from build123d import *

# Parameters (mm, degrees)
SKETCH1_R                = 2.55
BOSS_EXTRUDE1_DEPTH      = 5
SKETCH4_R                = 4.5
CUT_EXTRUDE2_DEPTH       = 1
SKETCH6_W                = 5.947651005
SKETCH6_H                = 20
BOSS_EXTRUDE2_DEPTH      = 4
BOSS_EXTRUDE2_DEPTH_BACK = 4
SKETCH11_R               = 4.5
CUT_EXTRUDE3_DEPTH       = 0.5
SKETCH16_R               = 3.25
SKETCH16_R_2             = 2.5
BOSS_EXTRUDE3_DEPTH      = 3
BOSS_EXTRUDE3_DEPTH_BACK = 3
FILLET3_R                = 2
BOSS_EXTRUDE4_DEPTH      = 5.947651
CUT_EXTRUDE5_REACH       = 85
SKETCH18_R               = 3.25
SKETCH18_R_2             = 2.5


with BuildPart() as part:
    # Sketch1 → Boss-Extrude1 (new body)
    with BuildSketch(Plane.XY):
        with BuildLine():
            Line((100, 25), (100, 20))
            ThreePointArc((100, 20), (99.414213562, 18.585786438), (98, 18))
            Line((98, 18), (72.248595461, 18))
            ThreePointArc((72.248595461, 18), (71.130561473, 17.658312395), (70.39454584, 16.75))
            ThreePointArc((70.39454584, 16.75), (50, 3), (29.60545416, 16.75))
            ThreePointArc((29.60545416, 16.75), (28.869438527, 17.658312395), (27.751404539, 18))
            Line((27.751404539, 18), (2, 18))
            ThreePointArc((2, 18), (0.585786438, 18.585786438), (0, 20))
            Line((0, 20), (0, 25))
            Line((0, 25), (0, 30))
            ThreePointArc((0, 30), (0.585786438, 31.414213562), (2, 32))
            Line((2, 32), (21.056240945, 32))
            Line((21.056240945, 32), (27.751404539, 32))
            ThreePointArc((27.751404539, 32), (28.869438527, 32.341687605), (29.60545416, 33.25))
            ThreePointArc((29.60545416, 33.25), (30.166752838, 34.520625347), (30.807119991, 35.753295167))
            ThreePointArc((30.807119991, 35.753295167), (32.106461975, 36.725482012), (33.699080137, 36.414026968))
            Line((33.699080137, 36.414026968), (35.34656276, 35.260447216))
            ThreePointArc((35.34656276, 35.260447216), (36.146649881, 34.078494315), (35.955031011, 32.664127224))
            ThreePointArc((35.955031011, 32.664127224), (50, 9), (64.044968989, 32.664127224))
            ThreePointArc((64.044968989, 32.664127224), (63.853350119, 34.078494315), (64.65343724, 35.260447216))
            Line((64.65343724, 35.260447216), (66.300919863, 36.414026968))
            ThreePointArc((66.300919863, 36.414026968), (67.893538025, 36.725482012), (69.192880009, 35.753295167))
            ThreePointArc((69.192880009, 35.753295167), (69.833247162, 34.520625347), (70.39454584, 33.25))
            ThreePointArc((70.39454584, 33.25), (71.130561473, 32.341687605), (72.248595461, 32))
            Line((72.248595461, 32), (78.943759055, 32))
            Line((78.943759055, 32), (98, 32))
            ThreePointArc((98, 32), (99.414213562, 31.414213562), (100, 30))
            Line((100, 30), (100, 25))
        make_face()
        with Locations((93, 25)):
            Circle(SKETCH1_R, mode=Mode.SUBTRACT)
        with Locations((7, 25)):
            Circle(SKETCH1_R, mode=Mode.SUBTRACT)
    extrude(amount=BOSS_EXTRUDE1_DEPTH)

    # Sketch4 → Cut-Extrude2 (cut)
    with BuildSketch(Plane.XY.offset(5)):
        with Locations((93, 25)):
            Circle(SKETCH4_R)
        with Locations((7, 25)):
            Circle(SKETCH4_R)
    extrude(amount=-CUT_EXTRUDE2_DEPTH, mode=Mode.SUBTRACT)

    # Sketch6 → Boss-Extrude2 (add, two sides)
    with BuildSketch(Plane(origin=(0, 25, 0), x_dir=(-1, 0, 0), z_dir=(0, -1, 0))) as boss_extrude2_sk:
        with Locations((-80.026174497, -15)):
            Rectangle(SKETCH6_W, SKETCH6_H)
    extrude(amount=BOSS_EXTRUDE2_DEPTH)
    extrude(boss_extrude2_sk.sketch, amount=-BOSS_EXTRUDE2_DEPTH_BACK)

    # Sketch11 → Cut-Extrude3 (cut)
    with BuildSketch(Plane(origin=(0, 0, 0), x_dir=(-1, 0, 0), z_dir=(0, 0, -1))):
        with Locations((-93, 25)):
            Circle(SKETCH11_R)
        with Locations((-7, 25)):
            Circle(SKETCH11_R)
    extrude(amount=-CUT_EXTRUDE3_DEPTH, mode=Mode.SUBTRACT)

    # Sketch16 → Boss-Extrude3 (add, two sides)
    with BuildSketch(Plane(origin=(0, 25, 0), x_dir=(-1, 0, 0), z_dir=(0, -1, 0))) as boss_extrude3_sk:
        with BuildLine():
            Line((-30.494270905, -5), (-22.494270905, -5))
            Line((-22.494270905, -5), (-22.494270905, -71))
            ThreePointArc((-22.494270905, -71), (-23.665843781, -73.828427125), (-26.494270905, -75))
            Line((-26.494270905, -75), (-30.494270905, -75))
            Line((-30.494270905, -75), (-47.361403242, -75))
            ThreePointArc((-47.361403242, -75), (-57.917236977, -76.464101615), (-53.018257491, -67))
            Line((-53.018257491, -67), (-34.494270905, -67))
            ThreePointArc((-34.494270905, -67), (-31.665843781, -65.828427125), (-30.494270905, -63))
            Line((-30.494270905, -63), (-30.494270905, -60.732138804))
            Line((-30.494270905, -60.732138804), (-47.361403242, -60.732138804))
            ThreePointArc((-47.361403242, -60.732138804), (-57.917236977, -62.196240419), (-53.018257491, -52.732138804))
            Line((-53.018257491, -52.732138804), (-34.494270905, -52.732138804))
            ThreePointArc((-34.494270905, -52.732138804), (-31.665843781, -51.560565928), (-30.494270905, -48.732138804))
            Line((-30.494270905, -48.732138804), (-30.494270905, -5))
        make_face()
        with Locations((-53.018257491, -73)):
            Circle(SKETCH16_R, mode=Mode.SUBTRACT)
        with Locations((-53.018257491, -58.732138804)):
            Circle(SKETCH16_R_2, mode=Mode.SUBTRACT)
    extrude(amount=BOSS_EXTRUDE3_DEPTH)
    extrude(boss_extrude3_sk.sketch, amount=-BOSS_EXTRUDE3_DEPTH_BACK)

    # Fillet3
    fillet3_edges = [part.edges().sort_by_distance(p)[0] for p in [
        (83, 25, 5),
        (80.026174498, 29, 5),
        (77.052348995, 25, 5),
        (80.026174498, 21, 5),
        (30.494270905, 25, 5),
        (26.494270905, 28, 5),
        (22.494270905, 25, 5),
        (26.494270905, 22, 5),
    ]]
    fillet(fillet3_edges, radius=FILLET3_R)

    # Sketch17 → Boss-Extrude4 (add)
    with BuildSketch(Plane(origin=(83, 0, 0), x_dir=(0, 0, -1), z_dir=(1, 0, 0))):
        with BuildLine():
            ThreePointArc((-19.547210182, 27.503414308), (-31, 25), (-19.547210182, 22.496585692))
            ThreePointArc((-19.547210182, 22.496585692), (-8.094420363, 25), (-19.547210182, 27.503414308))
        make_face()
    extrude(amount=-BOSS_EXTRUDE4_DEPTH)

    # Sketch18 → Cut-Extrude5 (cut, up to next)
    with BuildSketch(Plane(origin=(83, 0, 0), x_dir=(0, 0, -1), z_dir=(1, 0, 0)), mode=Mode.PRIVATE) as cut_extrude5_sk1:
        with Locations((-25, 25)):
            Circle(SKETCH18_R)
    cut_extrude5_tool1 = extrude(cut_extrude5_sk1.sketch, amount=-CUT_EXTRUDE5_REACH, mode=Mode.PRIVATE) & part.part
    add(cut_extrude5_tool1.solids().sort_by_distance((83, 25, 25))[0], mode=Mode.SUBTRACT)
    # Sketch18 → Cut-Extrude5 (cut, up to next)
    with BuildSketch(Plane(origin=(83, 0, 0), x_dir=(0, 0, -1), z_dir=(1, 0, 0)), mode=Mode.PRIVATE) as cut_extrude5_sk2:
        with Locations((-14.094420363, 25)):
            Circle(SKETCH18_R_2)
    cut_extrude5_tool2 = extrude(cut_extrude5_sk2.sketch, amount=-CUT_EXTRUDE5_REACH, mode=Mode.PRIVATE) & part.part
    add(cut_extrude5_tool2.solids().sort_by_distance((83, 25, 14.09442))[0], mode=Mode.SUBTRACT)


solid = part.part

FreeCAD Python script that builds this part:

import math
import FreeCAD as App
import Part
import Sketcher

V = App.Vector
Q = App.Units.Quantity


def edges_at(feature, points):
    """Names of the edges that pass closest to the given points."""
    edges = feature.Shape.Edges
    near = lambda p: min(range(len(edges)), key=lambda i: edges[i].distToShape(Part.Vertex(*p))[0])
    return sorted({f"Edge{near(p) + 1}" for p in points})


def add_polygon(sketch, points):
    """Adds a closed chain of lines whose ends are joined by coincident constraints."""
    first, n = sketch.GeometryCount, len(points)
    for a, b in zip(points, points[1:] + points[:1]):
        sketch.addGeometry(Part.LineSegment(App.Vector(*a, 0), App.Vector(*b, 0)), False)
    for i in range(n):
        sketch.addConstraint(Sketcher.Constraint("Coincident", first + i, 2, first + (i + 1) % n, 1))

doc = App.newDocument("Part")
body = doc.addObject("PartDesign::Body", "Body")

sketch1 = body.newObject("Sketcher::SketchObject", "Sketch")
sketch1.AttachmentSupport = (doc.getObject("XY_Plane"), [""])
sketch1.MapMode = "FlatFace"
sketch1.addGeometry(Part.ArcOfCircle(Part.Circle(V(98, 20, 0), V(0, 0, 1), 2), math.radians(-90), math.radians(0)), False)
sketch1.addGeometry(Part.LineSegment(V(100, 20, 0), V(100, 30, 0)), False)
sketch1.addGeometry(Part.ArcOfCircle(Part.Circle(V(98, 30, 0), V(0, 0, 1), 2), math.radians(0), math.radians(90)), False)
sketch1.addGeometry(Part.LineSegment(V(98, 32, 0), V(72.248595, 32, 0)), False)
sketch1.addGeometry(Part.ArcOfCircle(Part.Circle(V(72.248595, 34, 0), V(0, 0, 1), 2), math.radians(-157.975687), math.radians(-90)), False)
sketch1.addGeometry(Part.ArcOfCircle(Part.Circle(V(50, 25, 0), V(0, 0, 1), 22), math.radians(22.024313), math.radians(29.26083)), False)
sketch1.addGeometry(Part.ArcOfCircle(Part.Circle(V(67.448073, 34.775723, 0), V(0, 0, 1), 2), math.radians(29.26083), math.radians(125)), False)
sketch1.addGeometry(Part.LineSegment(V(66.30092, 36.414027, 0), V(64.653437, 35.260447, 0)), False)
sketch1.addGeometry(Part.ArcOfCircle(Part.Circle(V(65.80059, 33.622143, 0), V(0, 0, 1), 2), math.radians(125), math.radians(208.62063)), False)
sketch1.addGeometry(Part.ArcOfCircle(Part.Circle(V(50, 25, 0), V(0, 0, 1), 16), math.radians(151.37937), math.radians(388.62063)), False)
sketch1.addGeometry(Part.ArcOfCircle(Part.Circle(V(34.19941, 33.622143, 0), V(0, 0, 1), 2), math.radians(-28.62063), math.radians(55)), False)
sketch1.addGeometry(Part.LineSegment(V(35.346563, 35.260447, 0), V(33.69908, 36.414027, 0)), False)
sketch1.addGeometry(Part.ArcOfCircle(Part.Circle(V(32.551927, 34.775723, 0), V(0, 0, 1), 2), math.radians(55), math.radians(150.73917)), False)
sketch1.addGeometry(Part.ArcOfCircle(Part.Circle(V(50, 25, 0), V(0, 0, 1), 22), math.radians(150.73917), math.radians(157.975687)), False)
sketch1.addGeometry(Part.ArcOfCircle(Part.Circle(V(27.751405, 34, 0), V(0, 0, 1), 2), math.radians(-90), math.radians(-22.024313)), False)
sketch1.addGeometry(Part.LineSegment(V(27.751405, 32, 0), V(2, 32, 0)), False)
sketch1.addGeometry(Part.ArcOfCircle(Part.Circle(V(2, 30, 0), V(0, 0, 1), 2), math.radians(90), math.radians(180)), False)
sketch1.addGeometry(Part.LineSegment(V(0, 30, 0), V(0, 20, 0)), False)
sketch1.addGeometry(Part.ArcOfCircle(Part.Circle(V(2, 20, 0), V(0, 0, 1), 2), math.radians(-180), math.radians(-90)), False)
sketch1.addGeometry(Part.LineSegment(V(2, 18, 0), V(27.751405, 18, 0)), False)
sketch1.addGeometry(Part.ArcOfCircle(Part.Circle(V(27.751405, 16, 0), V(0, 0, 1), 2), math.radians(22.024313), math.radians(90)), False)
sketch1.addGeometry(Part.ArcOfCircle(Part.Circle(V(50, 25, 0), V(0, 0, 1), 22), math.radians(-157.975687), math.radians(-22.024313)), False)
sketch1.addGeometry(Part.ArcOfCircle(Part.Circle(V(72.248595, 16, 0), V(0, 0, 1), 2), math.radians(90), math.radians(157.975687)), False)
sketch1.addGeometry(Part.LineSegment(V(72.248595, 18, 0), V(98, 18, 0)), False)
sketch1.addGeometry(Part.Circle(V(93, 25, 0), V(0, 0, 1), 2.55), False)
sketch1.addGeometry(Part.Circle(V(7, 25, 0), V(0, 0, 1), 2.55), False)
sketch1.addConstraint(Sketcher.Constraint("Tangent", 0, 2, 1, 1))
sketch1.addConstraint(Sketcher.Constraint("Tangent", 1, 2, 2, 1))
sketch1.addConstraint(Sketcher.Constraint("Tangent", 2, 2, 3, 1))
sketch1.addConstraint(Sketcher.Constraint("Tangent", 3, 2, 4, 2))
sketch1.addConstraint(Sketcher.Constraint("Tangent", 4, 1, 5, 1))
sketch1.addConstraint(Sketcher.Constraint("Tangent", 5, 2, 6, 1))
sketch1.addConstraint(Sketcher.Constraint("Tangent", 6, 2, 7, 1))
sketch1.addConstraint(Sketcher.Constraint("Tangent", 7, 2, 8, 1))
sketch1.addConstraint(Sketcher.Constraint("Tangent", 8, 2, 9, 2))
sketch1.addConstraint(Sketcher.Constraint("Tangent", 9, 1, 10, 1))
sketch1.addConstraint(Sketcher.Constraint("Tangent", 10, 2, 11, 1))
sketch1.addConstraint(Sketcher.Constraint("Tangent", 11, 2, 12, 1))
sketch1.addConstraint(Sketcher.Constraint("Tangent", 12, 2, 13, 1))
sketch1.addConstraint(Sketcher.Constraint("Tangent", 13, 2, 14, 2))
sketch1.addConstraint(Sketcher.Constraint("Tangent", 14, 1, 15, 1))
sketch1.addConstraint(Sketcher.Constraint("Tangent", 15, 2, 16, 1))
sketch1.addConstraint(Sketcher.Constraint("Tangent", 16, 2, 17, 1))
sketch1.addConstraint(Sketcher.Constraint("Tangent", 17, 2, 18, 1))
sketch1.addConstraint(Sketcher.Constraint("Tangent", 18, 2, 19, 1))
sketch1.addConstraint(Sketcher.Constraint("Tangent", 19, 2, 20, 2))
sketch1.addConstraint(Sketcher.Constraint("Tangent", 20, 1, 21, 1))
sketch1.addConstraint(Sketcher.Constraint("Tangent", 21, 2, 22, 2))
sketch1.addConstraint(Sketcher.Constraint("Tangent", 22, 1, 23, 1))
sketch1.addConstraint(Sketcher.Constraint("Tangent", 23, 2, 0, 1))
sketch1.addConstraint(Sketcher.Constraint("Vertical", 1))
sketch1.addConstraint(Sketcher.Constraint("Horizontal", 3))
sketch1.addConstraint(Sketcher.Constraint("Horizontal", 15))
sketch1.addConstraint(Sketcher.Constraint("Vertical", 17))
sketch1.addConstraint(Sketcher.Constraint("Horizontal", 19))
sketch1.addConstraint(Sketcher.Constraint("Horizontal", 23))
sketch1.addConstraint(Sketcher.Constraint("Coincident", 9, 3, 5, 3))
sketch1.addConstraint(Sketcher.Constraint("Coincident", 13, 3, 5, 3))
sketch1.addConstraint(Sketcher.Constraint("Coincident", 21, 3, 5, 3))
sketch1.addConstraint(Sketcher.Constraint("Equal", 0, 2))
sketch1.addConstraint(Sketcher.Constraint("Equal", 2, 4))
sketch1.addConstraint(Sketcher.Constraint("Equal", 4, 6))
sketch1.addConstraint(Sketcher.Constraint("Equal", 6, 8))
sketch1.addConstraint(Sketcher.Constraint("Equal", 8, 10))
sketch1.addConstraint(Sketcher.Constraint("Equal", 10, 12))
sketch1.addConstraint(Sketcher.Constraint("Equal", 5, 13))
sketch1.addConstraint(Sketcher.Constraint("Equal", 12, 14))
sketch1.addConstraint(Sketcher.Constraint("Equal", 14, 16))
sketch1.addConstraint(Sketcher.Constraint("Equal", 16, 18))
sketch1.addConstraint(Sketcher.Constraint("Equal", 18, 20))
sketch1.addConstraint(Sketcher.Constraint("Equal", 13, 21))
sketch1.addConstraint(Sketcher.Constraint("Equal", 20, 22))
sketch1.addConstraint(Sketcher.Constraint("Equal", 24, 25))
sketch1.addConstraint(Sketcher.Constraint("PointOnObject", 16, 2, -2))
sketch1.addConstraint(Sketcher.Constraint("Horizontal", 8, 3, 10, 3))
sketch1.addConstraint(Sketcher.Constraint("Horizontal", 6, 3, 12, 3))
sketch1.addConstraint(Sketcher.Constraint("Horizontal", 4, 3, 14, 3))
sketch1.addConstraint(Sketcher.Constraint("Horizontal", 0, 3, 18, 3))
sketch1.addConstraint(Sketcher.Constraint("Horizontal", 21, 3, 24, 3))
sketch1.addConstraint(Sketcher.Constraint("Horizontal", 24, 3, 25, 3))
sketch1.addConstraint(Sketcher.Constraint("Vertical", 14, 3, 20, 3))
sketch1.addConstraint(Sketcher.Constraint("Equal", 3, 15))
sketch1.addConstraint(Sketcher.Constraint("Radius", 0, Q("2 mm")))
sketch1.addConstraint(Sketcher.Constraint("Radius", 5, Q("22 mm")))
sketch1.addConstraint(Sketcher.Constraint("Radius", 9, Q("16 mm")))
sketch1.addConstraint(Sketcher.Constraint("Diameter", 24, Q("5.1 mm")))
sketch1.addConstraint(Sketcher.Constraint("DistanceY", 1, 1, 1, 2, Q("10 mm")))
sketch1.addConstraint(Sketcher.Constraint("Angle", 7, Q("-145 deg")))
sketch1.addConstraint(Sketcher.Constraint("DistanceX", -1, 1, 0, 3, Q("98 mm")))
sketch1.addConstraint(Sketcher.Constraint("DistanceY", -1, 1, 0, 3, Q("20 mm")))
sketch1.addConstraint(Sketcher.Constraint("DistanceX", -1, 1, 24, 3, Q("93 mm")))
sketch1.addConstraint(Sketcher.Constraint("DistanceX", -1, 1, 25, 3, Q("7 mm")))
sketch1.addConstraint(Sketcher.Constraint("DistanceY", 8, 2, 6, 2, Q("3.7499 mm")))
pad1 = body.newObject("PartDesign::Pad", "Pad")
pad1.Profile = sketch1
pad1.Length = 5

sketch2 = body.newObject("Sketcher::SketchObject", "Sketch001")
sketch2.AttachmentSupport = (doc.getObject("XY_Plane"), [""])
sketch2.MapMode = "FlatFace"
sketch2.AttachmentOffset = App.Placement(V(0, 0, 5), App.Rotation())
sketch2.addGeometry(Part.Circle(V(93, 25, 0), V(0, 0, 1), 4.5), False)
sketch2.addGeometry(Part.Circle(V(7, 25, 0), V(0, 0, 1), 4.5), False)
sketch2.addConstraint(Sketcher.Constraint("Equal", 0, 1))
sketch2.addConstraint(Sketcher.Constraint("Horizontal", 0, 3, 1, 3))
sketch2.addConstraint(Sketcher.Constraint("Diameter", 0, Q("9 mm")))
sketch2.addConstraint(Sketcher.Constraint("DistanceX", -1, 1, 0, 3, Q("93 mm")))
sketch2.addConstraint(Sketcher.Constraint("DistanceY", -1, 1, 0, 3, Q("25 mm")))
sketch2.addConstraint(Sketcher.Constraint("DistanceX", -1, 1, 1, 3, Q("7 mm")))
pocket1 = body.newObject("PartDesign::Pocket", "Pocket")
pocket1.Profile = sketch2
pocket1.Length = 1

sketch3 = body.newObject("Sketcher::SketchObject", "Sketch002")
sketch3.AttachmentSupport = (doc.getObject("XZ_Plane"), [""])
sketch3.MapMode = "FlatFace"
sketch3.AttachmentOffset = App.Placement(V(0, 0, -25), App.Rotation())
add_polygon(sketch3, [(83, 5), (83, 25), (77.052349, 25), (77.052349, 5)])
sketch3.addConstraint(Sketcher.Constraint("Vertical", 0))
sketch3.addConstraint(Sketcher.Constraint("Horizontal", 1))
sketch3.addConstraint(Sketcher.Constraint("Vertical", 2))
sketch3.addConstraint(Sketcher.Constraint("Horizontal", 3))
sketch3.addConstraint(Sketcher.Constraint("DistanceY", 0, 1, 0, 2, Q("20 mm")))
sketch3.addConstraint(Sketcher.Constraint("DistanceX", -1, 1, 0, 2, Q("83 mm")))
sketch3.addConstraint(Sketcher.Constraint("DistanceY", -1, 1, 0, 2, Q("25 mm")))
sketch3.addConstraint(Sketcher.Constraint("DistanceX", 1, 2, 1, 1, Q("5.947651 mm")))
pad2 = body.newObject("PartDesign::Pad", "Pad001")
pad2.Profile = sketch3
pad2.Type = "TwoLengths"
pad2.Length = 4
pad2.Length2 = 4

sketch4 = body.newObject("Sketcher::SketchObject", "Sketch003")
sketch4.AttachmentSupport = (doc.getObject("XY_Plane"), [""])
sketch4.MapMode = "FlatFace"
sketch4.addGeometry(Part.Circle(V(93, 25, 0), V(0, 0, 1), 4.5), False)
sketch4.addGeometry(Part.Circle(V(7, 25, 0), V(0, 0, 1), 4.5), False)
sketch4.addConstraint(Sketcher.Constraint("Equal", 0, 1))
sketch4.addConstraint(Sketcher.Constraint("Horizontal", 0, 3, 1, 3))
sketch4.addConstraint(Sketcher.Constraint("Diameter", 0, Q("9 mm")))
sketch4.addConstraint(Sketcher.Constraint("DistanceX", -1, 1, 0, 3, Q("93 mm")))
sketch4.addConstraint(Sketcher.Constraint("DistanceY", -1, 1, 0, 3, Q("25 mm")))
sketch4.addConstraint(Sketcher.Constraint("DistanceX", -1, 1, 1, 3, Q("7 mm")))
pocket2 = body.newObject("PartDesign::Pocket", "Pocket001")
pocket2.Profile = sketch4
pocket2.Length = 0.5
pocket2.Reversed = True

sketch5 = body.newObject("Sketcher::SketchObject", "Sketch004")
sketch5.AttachmentSupport = (doc.getObject("XZ_Plane"), [""])
sketch5.MapMode = "FlatFace"
sketch5.AttachmentOffset = App.Placement(V(0, 0, -25), App.Rotation())
sketch5.addGeometry(Part.LineSegment(V(22.494271, 5, 0), V(30.494271, 5, 0)), False)
sketch5.addGeometry(Part.LineSegment(V(30.494271, 5, 0), V(30.494271, 48.732139, 0)), False)
sketch5.addGeometry(Part.ArcOfCircle(Part.Circle(V(34.494271, 48.732139, 0), V(0, 0, 1), 4), math.radians(90), math.radians(180)), False)
sketch5.addGeometry(Part.LineSegment(V(34.494271, 52.732139, 0), V(53.018257, 52.732139, 0)), False)
sketch5.addGeometry(Part.ArcOfCircle(Part.Circle(V(53.018257, 58.732139, 0), V(0, 0, 1), 6), math.radians(-90), math.radians(160.528779)), False)
sketch5.addGeometry(Part.LineSegment(V(47.361403, 60.732139, 0), V(30.494271, 60.732139, 0)), False)
sketch5.addGeometry(Part.LineSegment(V(30.494271, 60.732139, 0), V(30.494271, 63, 0)), False)
sketch5.addGeometry(Part.ArcOfCircle(Part.Circle(V(34.494271, 63, 0), V(0, 0, 1), 4), math.radians(90), math.radians(180)), False)
sketch5.addGeometry(Part.LineSegment(V(34.494271, 67, 0), V(53.018257, 67, 0)), False)
sketch5.addGeometry(Part.ArcOfCircle(Part.Circle(V(53.018257, 73, 0), V(0, 0, 1), 6), math.radians(-90), math.radians(160.528779)), False)
sketch5.addGeometry(Part.LineSegment(V(47.361403, 75, 0), V(26.494271, 75, 0)), False)
sketch5.addGeometry(Part.ArcOfCircle(Part.Circle(V(26.494271, 71, 0), V(0, 0, 1), 4), math.radians(90), math.radians(180)), False)
sketch5.addGeometry(Part.LineSegment(V(22.494271, 71, 0), V(22.494271, 5, 0)), False)
sketch5.addGeometry(Part.Circle(V(53.018257, 73, 0), V(0, 0, 1), 3.25), False)
sketch5.addGeometry(Part.Circle(V(53.018257, 58.732139, 0), V(0, 0, 1), 2.5), False)
sketch5.addConstraint(Sketcher.Constraint("Coincident", 0, 2, 1, 1))
sketch5.addConstraint(Sketcher.Constraint("Tangent", 1, 2, 2, 2))
sketch5.addConstraint(Sketcher.Constraint("Tangent", 2, 1, 3, 1))
sketch5.addConstraint(Sketcher.Constraint("Tangent", 3, 2, 4, 1))
sketch5.addConstraint(Sketcher.Constraint("Coincident", 4, 2, 5, 1))
sketch5.addConstraint(Sketcher.Constraint("Coincident", 5, 2, 6, 1))
sketch5.addConstraint(Sketcher.Constraint("Tangent", 6, 2, 7, 2))
sketch5.addConstraint(Sketcher.Constraint("Tangent", 7, 1, 8, 1))
sketch5.addConstraint(Sketcher.Constraint("Tangent", 8, 2, 9, 1))
sketch5.addConstraint(Sketcher.Constraint("Coincident", 9, 2, 10, 1))
sketch5.addConstraint(Sketcher.Constraint("Tangent", 10, 2, 11, 1))
sketch5.addConstraint(Sketcher.Constraint("Tangent", 11, 2, 12, 1))
sketch5.addConstraint(Sketcher.Constraint("Coincident", 12, 2, 0, 1))
sketch5.addConstraint(Sketcher.Constraint("Horizontal", 0))
sketch5.addConstraint(Sketcher.Constraint("Vertical", 1))
sketch5.addConstraint(Sketcher.Constraint("Horizontal", 3))
sketch5.addConstraint(Sketcher.Constraint("Horizontal", 5))
sketch5.addConstraint(Sketcher.Constraint("Vertical", 6))
sketch5.addConstraint(Sketcher.Constraint("Horizontal", 8))
sketch5.addConstraint(Sketcher.Constraint("Horizontal", 10))
sketch5.addConstraint(Sketcher.Constraint("Vertical", 12))
sketch5.addConstraint(Sketcher.Constraint("Coincident", 13, 3, 9, 3))
sketch5.addConstraint(Sketcher.Constraint("Coincident", 14, 3, 4, 3))
sketch5.addConstraint(Sketcher.Constraint("Equal", 2, 7))
sketch5.addConstraint(Sketcher.Constraint("Equal", 4, 9))
sketch5.addConstraint(Sketcher.Constraint("Equal", 7, 11))
sketch5.addConstraint(Sketcher.Constraint("Vertical", 2, 3, 7, 3))
sketch5.addConstraint(Sketcher.Constraint("Vertical", 4, 3, 9, 3))
sketch5.addConstraint(Sketcher.Constraint("Vertical", 4, 2, 9, 2))
sketch5.addConstraint(Sketcher.Constraint("Diameter", 14, Q("5 mm")))
sketch5.addConstraint(Sketcher.Constraint("Radius", 2, Q("4 mm")))
sketch5.addConstraint(Sketcher.Constraint("Radius", 4, Q("6 mm")))
sketch5.addConstraint(Sketcher.Constraint("Diameter", 13, Q("6.5 mm")))
sketch5.addConstraint(Sketcher.Constraint("DistanceX", 0, 1, 0, 2, Q("8 mm")))
sketch5.addConstraint(Sketcher.Constraint("DistanceY", 12, 2, 12, 1, Q("66 mm")))
sketch5.addConstraint(Sketcher.Constraint("DistanceY", -1, 1, 7, 3, Q("63 mm")))
sketch5.addConstraint(Sketcher.Constraint("DistanceY", -1, 1, 11, 3, Q("71 mm")))
sketch5.addConstraint(Sketcher.Constraint("DistanceY", 1, 1, 1, 2, Q("43.732139 mm")))
sketch5.addConstraint(Sketcher.Constraint("DistanceX", 3, 1, 3, 2, Q("18.523987 mm")))
sketch5.addConstraint(Sketcher.Constraint("DistanceX", -1, 1, 2, 3, Q("34.494271 mm")))
pad3 = body.newObject("PartDesign::Pad", "Pad002")
pad3.Profile = sketch5
pad3.Type = "TwoLengths"
pad3.Length = 3
pad3.Length2 = 3
doc.recompute()

fillet = body.newObject("PartDesign::Fillet", "Fillet")
fillet.Base = (pad3, edges_at(pad3, [
    (83, 25, 5),
    (80.026, 29, 5),
    (77.052, 25, 5),
    (80.026, 21, 5),
    (30.494, 25, 5),
    (26.494, 28, 5),
    (22.494, 25, 5),
    (26.494, 22, 5),
]))
fillet.Radius = 2

sketch6 = body.newObject("Sketcher::SketchObject", "Sketch005")
sketch6.AttachmentSupport = (doc.getObject("YZ_Plane"), [""])
sketch6.MapMode = "FlatFace"
sketch6.AttachmentOffset = App.Placement(V(0, 0, 83), App.Rotation())
sketch6.addGeometry(Part.ArcOfCircle(Part.Circle(V(25, 25, 0), V(0, 0, 1), 6), math.radians(-65.339811), math.radians(245.339811)), False)
sketch6.addGeometry(Part.ArcOfCircle(Part.Circle(V(25, 14.09442, 0), V(0, 0, 1), 6), math.radians(114.660189), math.radians(425.339811)), False)
sketch6.addConstraint(Sketcher.Constraint("Coincident", 0, 1, 1, 2))
sketch6.addConstraint(Sketcher.Constraint("Coincident", 1, 1, 0, 2))
sketch6.addConstraint(Sketcher.Constraint("Equal", 0, 1))
sketch6.addConstraint(Sketcher.Constraint("Horizontal", 0, 1, 1, 1))
sketch6.addConstraint(Sketcher.Constraint("Radius", 0, Q("6 mm")))
sketch6.addConstraint(Sketcher.Constraint("DistanceX", -1, 1, 0, 3, Q("25 mm")))
sketch6.addConstraint(Sketcher.Constraint("DistanceY", -1, 1, 0, 3, Q("25 mm")))
sketch6.addConstraint(Sketcher.Constraint("DistanceY", -1, 1, 1, 3, Q("14.09442 mm")))
pad4 = body.newObject("PartDesign::Pad", "Pad003")
pad4.Profile = sketch6
pad4.Length = 5.947651
pad4.Reversed = True

sketch7 = body.newObject("Sketcher::SketchObject", "Sketch006")
sketch7.AttachmentSupport = (doc.getObject("YZ_Plane"), [""])
sketch7.MapMode = "FlatFace"
sketch7.AttachmentOffset = App.Placement(V(0, 0, 83), App.Rotation())
sketch7.addGeometry(Part.Circle(V(25, 25, 0), V(0, 0, 1), 3.25), False)
sketch7.addConstraint(Sketcher.Constraint("Diameter", 0, Q("6.5 mm")))
sketch7.addConstraint(Sketcher.Constraint("DistanceX", -1, 1, 0, 3, Q("25 mm")))
sketch7.addConstraint(Sketcher.Constraint("DistanceY", -1, 1, 0, 3, Q("25 mm")))
pocket3 = body.newObject("PartDesign::Pocket", "Pocket002")
pocket3.Profile = sketch7
pocket3.Type = "UpToFirst"

sketch8 = body.newObject("Sketcher::SketchObject", "Sketch007")
sketch8.AttachmentSupport = (doc.getObject("YZ_Plane"), [""])
sketch8.MapMode = "FlatFace"
sketch8.AttachmentOffset = App.Placement(V(0, 0, 83), App.Rotation())
sketch8.addGeometry(Part.Circle(V(25, 14.09442, 0), V(0, 0, 1), 2.5), False)
sketch8.addConstraint(Sketcher.Constraint("Diameter", 0, Q("5 mm")))
sketch8.addConstraint(Sketcher.Constraint("DistanceX", -1, 1, 0, 3, Q("25 mm")))
sketch8.addConstraint(Sketcher.Constraint("DistanceY", -1, 1, 0, 3, Q("14.09442 mm")))
pocket4 = body.newObject("PartDesign::Pocket", "Pocket003")
pocket4.Profile = sketch8
pocket4.Type = "UpToFirst"

doc.recompute()
